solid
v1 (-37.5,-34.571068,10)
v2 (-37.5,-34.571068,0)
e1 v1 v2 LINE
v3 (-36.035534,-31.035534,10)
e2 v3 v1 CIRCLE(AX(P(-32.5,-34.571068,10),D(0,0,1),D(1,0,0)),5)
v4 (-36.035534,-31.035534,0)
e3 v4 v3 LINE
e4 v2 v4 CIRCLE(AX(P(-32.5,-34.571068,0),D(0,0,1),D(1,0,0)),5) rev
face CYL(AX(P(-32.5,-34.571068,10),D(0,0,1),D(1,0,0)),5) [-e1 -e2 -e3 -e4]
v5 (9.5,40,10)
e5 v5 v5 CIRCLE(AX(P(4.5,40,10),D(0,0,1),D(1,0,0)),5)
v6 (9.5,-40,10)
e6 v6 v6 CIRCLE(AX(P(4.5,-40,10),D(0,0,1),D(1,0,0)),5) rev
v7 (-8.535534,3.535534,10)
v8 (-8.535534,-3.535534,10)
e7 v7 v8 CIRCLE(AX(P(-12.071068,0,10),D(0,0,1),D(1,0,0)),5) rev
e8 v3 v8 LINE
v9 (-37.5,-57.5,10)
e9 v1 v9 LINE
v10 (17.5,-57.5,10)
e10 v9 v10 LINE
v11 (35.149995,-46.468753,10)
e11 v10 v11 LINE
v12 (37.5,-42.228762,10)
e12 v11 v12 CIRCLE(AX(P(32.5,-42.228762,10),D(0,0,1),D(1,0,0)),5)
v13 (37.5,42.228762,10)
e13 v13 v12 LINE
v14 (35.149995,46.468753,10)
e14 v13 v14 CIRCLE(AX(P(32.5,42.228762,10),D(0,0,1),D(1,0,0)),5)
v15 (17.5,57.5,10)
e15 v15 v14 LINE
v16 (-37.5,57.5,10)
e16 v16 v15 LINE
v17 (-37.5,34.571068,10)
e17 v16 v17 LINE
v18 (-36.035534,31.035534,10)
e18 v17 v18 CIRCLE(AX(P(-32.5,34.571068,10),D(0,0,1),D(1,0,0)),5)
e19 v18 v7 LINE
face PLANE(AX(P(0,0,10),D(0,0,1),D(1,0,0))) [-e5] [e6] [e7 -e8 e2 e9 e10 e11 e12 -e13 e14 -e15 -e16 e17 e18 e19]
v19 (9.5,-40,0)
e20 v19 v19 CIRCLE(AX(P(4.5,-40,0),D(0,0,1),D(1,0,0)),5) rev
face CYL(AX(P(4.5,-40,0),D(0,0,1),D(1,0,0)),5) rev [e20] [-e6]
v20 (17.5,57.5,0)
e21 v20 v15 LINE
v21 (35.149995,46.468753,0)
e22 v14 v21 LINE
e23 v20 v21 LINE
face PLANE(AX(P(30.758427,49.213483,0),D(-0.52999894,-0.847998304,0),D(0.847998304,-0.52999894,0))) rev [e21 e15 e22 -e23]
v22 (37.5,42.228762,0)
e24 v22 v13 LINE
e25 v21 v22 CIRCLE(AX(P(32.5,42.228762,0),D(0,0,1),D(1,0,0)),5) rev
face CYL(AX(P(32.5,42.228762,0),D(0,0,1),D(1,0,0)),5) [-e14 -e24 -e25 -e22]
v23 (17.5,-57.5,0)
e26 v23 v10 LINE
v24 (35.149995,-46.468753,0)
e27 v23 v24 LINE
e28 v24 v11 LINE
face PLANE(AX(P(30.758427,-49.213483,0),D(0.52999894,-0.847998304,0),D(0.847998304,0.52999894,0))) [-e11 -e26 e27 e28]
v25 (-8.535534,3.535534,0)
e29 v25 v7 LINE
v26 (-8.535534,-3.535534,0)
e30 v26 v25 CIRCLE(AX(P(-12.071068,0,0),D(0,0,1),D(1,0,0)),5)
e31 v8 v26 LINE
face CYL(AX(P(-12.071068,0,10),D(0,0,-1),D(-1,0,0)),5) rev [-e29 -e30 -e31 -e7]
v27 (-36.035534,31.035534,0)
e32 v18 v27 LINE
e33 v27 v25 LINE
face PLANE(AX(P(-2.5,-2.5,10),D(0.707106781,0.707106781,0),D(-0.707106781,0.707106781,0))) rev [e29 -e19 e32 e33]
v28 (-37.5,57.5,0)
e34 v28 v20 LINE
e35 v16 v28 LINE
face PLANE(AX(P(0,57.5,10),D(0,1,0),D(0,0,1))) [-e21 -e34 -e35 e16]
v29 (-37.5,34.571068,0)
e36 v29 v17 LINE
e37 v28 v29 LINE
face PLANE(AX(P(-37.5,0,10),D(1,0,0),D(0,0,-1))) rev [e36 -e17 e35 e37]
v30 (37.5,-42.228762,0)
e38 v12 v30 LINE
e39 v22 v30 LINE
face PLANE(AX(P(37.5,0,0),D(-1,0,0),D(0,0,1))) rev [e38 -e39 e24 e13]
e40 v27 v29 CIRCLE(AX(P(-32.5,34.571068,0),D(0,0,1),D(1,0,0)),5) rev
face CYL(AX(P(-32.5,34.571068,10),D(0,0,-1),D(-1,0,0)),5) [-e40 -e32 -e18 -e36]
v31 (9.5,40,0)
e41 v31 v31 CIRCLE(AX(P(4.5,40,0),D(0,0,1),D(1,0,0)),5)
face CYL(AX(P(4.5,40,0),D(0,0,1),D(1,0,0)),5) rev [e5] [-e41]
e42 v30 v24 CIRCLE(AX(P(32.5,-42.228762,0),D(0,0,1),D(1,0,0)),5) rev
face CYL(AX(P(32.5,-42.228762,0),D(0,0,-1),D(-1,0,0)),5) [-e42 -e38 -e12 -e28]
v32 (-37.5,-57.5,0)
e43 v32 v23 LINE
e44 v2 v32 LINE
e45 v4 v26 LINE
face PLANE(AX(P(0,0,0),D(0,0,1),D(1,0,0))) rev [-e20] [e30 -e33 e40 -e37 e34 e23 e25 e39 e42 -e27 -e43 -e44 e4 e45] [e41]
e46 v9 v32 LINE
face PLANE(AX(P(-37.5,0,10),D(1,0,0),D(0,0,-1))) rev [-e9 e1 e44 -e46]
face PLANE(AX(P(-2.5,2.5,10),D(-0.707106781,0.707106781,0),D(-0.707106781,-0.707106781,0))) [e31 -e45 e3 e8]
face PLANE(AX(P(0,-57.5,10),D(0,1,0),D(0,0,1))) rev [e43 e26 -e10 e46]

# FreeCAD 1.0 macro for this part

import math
import FreeCAD as App
import Part
import Sketcher

V = App.Vector
Q = App.Units.Quantity


def edges_at(feature, points):
    """Names of the edges that pass closest to the given points."""
    edges = feature.Shape.Edges
    near = lambda p: min(range(len(edges)), key=lambda i: edges[i].distToShape(Part.Vertex(*p))[0])
    return sorted({f"Edge{near(p) + 1}" for p in points})

doc = App.newDocument("Part")
params = doc.addObject("Spreadsheet::Sheet", "Params")
for row, (alias, value) in enumerate([
    ("sketch1_width", "75 mm"),
    ("sketch1_height", "25 mm"),
    ("sketch1_height2", "115 mm"),
    ("pad1_length", "10 mm"),
    ("fillet_radius", "5 mm"),
    ("sketch2_height", "115 mm"),
    ("sketch2_height2", "90 mm"),
    ("pad2_length", "10 mm"),
    ("fillet2_radius", "5 mm"),
    ("sketch3_diameter", "10 mm"),
    ("sketch3_width", "20 mm"),
    ("sketch3_height", "90 mm"),
    ("fillet3_radius", "5 mm"),
    ("sketch4_radius", "5 mm"),
    ("sketch5_radius", "5 mm"),
    ("pad3_length", "10 mm"),
], start=1):
    params.set(f"A{row}", alias)
    params.set(f"B{row}", "=" + value)
    params.setAlias(f"B{row}", alias)

body = doc.addObject("PartDesign::Body", "Body")

# Sketch on XY plane
sketch1 = body.newObject("Sketcher::SketchObject", "Sketch")
sketch1.AttachmentSupport = (doc.getObject("XY_Plane"), [""])
sketch1.MapMode = "FlatFace"
sketch1.addGeometry(Part.LineSegment(V(37.5, 57.5, 0), V(-37.5, 57.5, 0)), False)
sketch1.addGeometry(Part.LineSegment(V(-37.5, 57.5, 0), V(-37.5, 32.5, 0)), False)
sketch1.addGeometry(Part.LineSegment(V(-37.5, 32.5, 0), V(-5, 0, 0)), False)
sketch1.addGeometry(Part.LineSegment(V(-5, 0, 0), V(-37.5, -32.5, 0)), False)
sketch1.addGeometry(Part.LineSegment(V(-37.5, -32.5, 0), V(-37.5, -57.5, 0)), False)
sketch1.addGeometry(Part.LineSegment(V(-37.5, -57.5, 0), V(37.5, -57.5, 0)), False)
sketch1.addGeometry(Part.LineSegment(V(37.5, -57.5, 0), V(37.5, 57.5, 0)), False)
sketch1.addConstraint(Sketcher.Constraint("Coincident", 0, 2, 1, 1))
sketch1.addConstraint(Sketcher.Constraint("Coincident", 1, 2, 2, 1))
sketch1.addConstraint(Sketcher.Constraint("Coincident", 2, 2, 3, 1))
sketch1.addConstraint(Sketcher.Constraint("Coincident", 3, 2, 4, 1))
sketch1.addConstraint(Sketcher.Constraint("Coincident", 4, 2, 5, 1))
sketch1.addConstraint(Sketcher.Constraint("Coincident", 5, 2, 6, 1))
sketch1.addConstraint(Sketcher.Constraint("Coincident", 6, 2, 0, 1))
sketch1.addConstraint(Sketcher.Constraint("Horizontal", 0))
sketch1.addConstraint(Sketcher.Constraint("Vertical", 1))
sketch1.addConstraint(Sketcher.Constraint("Vertical", 4))
sketch1.addConstraint(Sketcher.Constraint("Horizontal", 5))
sketch1.addConstraint(Sketcher.Constraint("Vertical", 6))
sketch1.addConstraint(Sketcher.Constraint("Symmetric", 0, 2, 5, 2, -1, 1))
sketch1.addConstraint(Sketcher.Constraint("Symmetric", 1, 2, 3, 2, -1))
sketch1.addConstraint(Sketcher.Constraint("PointOnObject", 2, 2, -1))
sketch1.addConstraint(Sketcher.Constraint("Perpendicular", 2, 3))
sketch1.addConstraint(Sketcher.Constraint("DistanceX", 0, 2, 0, 1, Q("75 mm")))
sketch1.addConstraint(Sketcher.Constraint("DistanceY", 1, 2, 1, 1, Q("25 mm")))
sketch1.addConstraint(Sketcher.Constraint("DistanceY", 6, 1, 6, 2, Q("115 mm")))
sketch1.setExpression("Constraints[16]", "Params.sketch1_width")
sketch1.setExpression("Constraints[17]", "Params.sketch1_height")
sketch1.setExpression("Constraints[18]", "Params.sketch1_height2")
pad1 = body.newObject("PartDesign::Pad", "Pad")
pad1.Profile = sketch1
pad1.setExpression("Length", "Params.pad1_length")
doc.recompute()

fillet = body.newObject("PartDesign::Fillet", "Fillet")
fillet.Base = (pad1, edges_at(pad1, [(-5, 0, 5), (-37.5, 32.5, 5), (-37.5, -32.5, 5)]))
fillet.setExpression("Radius", "Params.fillet_radius")

# Sketch on XY plane
sketch2 = body.newObject("Sketcher::SketchObject", "Sketch001")
sketch2.AttachmentSupport = (doc.getObject("XY_Plane"), [""])
sketch2.MapMode = "FlatFace"
sketch2.AttachmentOffset = App.Placement(V(0, 0, 10), App.Rotation())
sketch2.addGeometry(Part.LineSegment(V(37.5, 57.5, 0), V(37.5, -57.5, 0)), False)
sketch2.addGeometry(Part.LineSegment(V(37.5, -57.5, 0), V(57.5, -45, 0)), False)
sketch2.addGeometry(Part.LineSegment(V(57.5, -45, 0), V(57.5, 45, 0)), False)
sketch2.addGeometry(Part.LineSegment(V(57.5, 45, 0), V(37.5, 57.5, 0)), False)
sketch2.addConstraint(Sketcher.Constraint("Coincident", 0, 2, 1, 1))
sketch2.addConstraint(Sketcher.Constraint("Coincident", 1, 2, 2, 1))
sketch2.addConstraint(Sketcher.Constraint("Coincident", 2, 2, 3, 1))
sketch2.addConstraint(Sketcher.Constraint("Coincident", 3, 2, 0, 1))
sketch2.addConstraint(Sketcher.Constraint("Vertical", 0))
sketch2.addConstraint(Sketcher.Constraint("Vertical", 2))
sketch2.addConstraint(Sketcher.Constraint("Equal", 1, 3))
sketch2.addConstraint(Sketcher.Constraint("DistanceY", 0, 2, 0, 1, Q("115 mm")))
sketch2.addConstraint(Sketcher.Constraint("DistanceY", 2, 1, 2, 2, Q("90 mm")))
sketch2.addConstraint(Sketcher.Constraint("DistanceY", 1, 2, -1, 1, Q("45 mm")))
sketch2.addConstraint(Sketcher.Constraint("DistanceX", 0, 2, 1, 2, Q("20 mm")))
sketch2.addConstraint(Sketcher.Constraint("DistanceX", -1, 1, 0, 2, Q("37.5 mm")))
sketch2.setExpression("Constraints[7]", "Params.sketch2_height")
sketch2.setExpression("Constraints[8]", "Params.sketch2_height2")
pad2 = body.newObject("PartDesign::Pad", "Pad001")
pad2.Profile = sketch2
pad2.setExpression("Length", "Params.pad2_length")
pad2.Reversed = True
doc.recompute()

fillet2 = body.newObject("PartDesign::Fillet", "Fillet001")
fillet2.Base = (pad2, edges_at(pad2, [(57.5, -45, 5), (57.5, 45, 5)]))
fillet2.setExpression("Radius", "Params.fillet2_radius")

# Sketch on XY plane
sketch3 = body.newObject("Sketcher::SketchObject", "Sketch002")
sketch3.AttachmentSupport = (doc.getObject("XY_Plane"), [""])
sketch3.MapMode = "FlatFace"
sketch3.AttachmentOffset = App.Placement(V(0, 0, 10), App.Rotation())
sketch3.addGeometry(Part.LineSegment(V(17.5, 57.5, 0), V(37.5, 45, 0)), False)
sketch3.addGeometry(Part.LineSegment(V(37.5, 45, 0), V(37.5, -45, 0)), False)
sketch3.addGeometry(Part.LineSegment(V(37.5, -45, 0), V(17.5, -57.5, 0)), False)
sketch3.addGeometry(Part.LineSegment(V(17.5, -57.5, 0), V(37.5, -57.5, 0)), False)
sketch3.addGeometry(Part.LineSegment(V(37.5, -57.5, 0), V(55.149995, -46.468753, 0)), False)
sketch3.addGeometry(Part.ArcOfCircle(Part.Circle(V(52.5, -42.228762, 0), V(0, 0, 1), 5), math.radians(-57.994617), math.radians(0)), False)
sketch3.addGeometry(Part.LineSegment(V(57.5, -42.228762, 0), V(57.5, 42.228762, 0)), False)
sketch3.addGeometry(Part.ArcOfCircle(Part.Circle(V(52.5, 42.228762, 0), V(0, 0, 1), 5), math.radians(0), math.radians(57.994617)), False)
sketch3.addGeometry(Part.LineSegment(V(55.149995, 46.468753, 0), V(37.5, 57.5, 0)), False)
sketch3.addGeometry(Part.LineSegment(V(37.5, 57.5, 0), V(17.5, 57.5, 0)), False)
sketch3.addGeometry(Part.Circle(V(4.5, -32.5, 0), V(0, 0, 1), 5), False)
sketch3.addGeometry(Part.Circle(V(4.5, 32.5, 0), V(0, 0, 1), 5), False)
sketch3.addConstraint(Sketcher.Constraint("Coincident", 0, 2, 1, 1))
sketch3.addConstraint(Sketcher.Constraint("Coincident", 1, 2, 2, 1))
sketch3.addConstraint(Sketcher.Constraint("Coincident", 2, 2, 3, 1))
sketch3.addConstraint(Sketcher.Constraint("Coincident", 3, 2, 4, 1))
sketch3.addConstraint(Sketcher.Constraint("Tangent", 4, 2, 5, 1))
sketch3.addConstraint(Sketcher.Constraint("Tangent", 5, 2, 6, 1))
sketch3.addConstraint(Sketcher.Constraint("Tangent", 6, 2, 7, 1))
sketch3.addConstraint(Sketcher.Constraint("Tangent", 7, 2, 8, 1))
sketch3.addConstraint(Sketcher.Constraint("Coincident", 8, 2, 9, 1))
sketch3.addConstraint(Sketcher.Constraint("Coincident", 9, 2, 0, 1))
sketch3.addConstraint(Sketcher.Constraint("Vertical", 1))
sketch3.addConstraint(Sketcher.Constraint("Horizontal", 3))
sketch3.addConstraint(Sketcher.Constraint("Vertical", 6))
sketch3.addConstraint(Sketcher.Constraint("Horizontal", 9))
sketch3.addConstraint(Sketcher.Constraint("Equal", 5, 7))
sketch3.addConstraint(Sketcher.Constraint("Equal", 7, 10))
sketch3.addConstraint(Sketcher.Constraint("Equal", 10, 11))
sketch3.addConstraint(Sketcher.Constraint("Symmetric", 10, 3, 11, 3, -1))
sketch3.addConstraint(Sketcher.Constraint("Symmetric", 4, 2, 7, 2, -1))
sketch3.addConstraint(Sketcher.Constraint("Symmetric", 2, 2, 9, 2, -1))
sketch3.addConstraint(Sketcher.Constraint("Parallel", 2, 4))
sketch3.addConstraint(Sketcher.Constraint("Parallel", 0, 8))
sketch3.addConstraint(Sketcher.Constraint("Vertical", 1, 2, 3, 2))
sketch3.addConstraint(Sketcher.Constraint("Diameter", 10, Q("10 mm")))
sketch3.addConstraint(Sketcher.Constraint("DistanceX", 3, 1, 3, 2, Q("20 mm")))
sketch3.addConstraint(Sketcher.Constraint("DistanceY", 1, 2, 1, 1, Q("90 mm")))
sketch3.addConstraint(Sketcher.Constraint("DistanceX", 10, 3, 5, 3, Q("48 mm")))
sketch3.addConstraint(Sketcher.Constraint("DistanceY", 10, 3, 11, 3, Q("65 mm")))
sketch3.addConstraint(Sketcher.Constraint("DistanceX", 0, 2, 7, 3, Q("15 mm")))
sketch3.addConstraint(Sketcher.Constraint("DistanceY", 2, 2, 10, 3, Q("25 mm")))
sketch3.addConstraint(Sketcher.Constraint("DistanceX", -1, 1, 5, 3, Q("52.5 mm")))
sketch3.setExpression("Constraints[23]", "Params.sketch3_diameter")
sketch3.setExpression("Constraints[24]", "Params.sketch3_width")
sketch3.setExpression("Constraints[25]", "Params.sketch3_height")
pocket1 = body.newObject("PartDesign::Pocket", "Pocket")
pocket1.Profile = sketch3
pocket1.Type = "ThroughAll"
doc.recompute()

fillet3 = body.newObject("PartDesign::Fillet", "Fillet002")
fillet3.Base = (pocket1, edges_at(pocket1, [(37.5, -45, 5), (37.5, 45, 5)]))
fillet3.setExpression("Radius", "Params.fillet3_radius")

# Sketch on XY plane
sketch4 = body.newObject("Sketcher::SketchObject", "Sketch003")
sketch4.AttachmentSupport = (doc.getObject("XY_Plane"), [""])
sketch4.MapMode = "FlatFace"
sketch4.AttachmentOffset = App.Placement(V(0, 0, 10), App.Rotation())
sketch4.addGeometry(Part.ArcOfCircle(Part.Circle(V(4.5, 40, 0), V(0, 0, 1), 5), math.radians(-48.590378), math.radians(228.590378)), False)
sketch4.addGeometry(Part.ArcOfCircle(Part.Circle(V(4.5, 32.5, 0), V(0, 0, 1), 5), math.radians(131.409622), math.radians(408.590378)), False)
sketch4.addGeometry(Part.ArcOfCircle(Part.Circle(V(4.5, -40, 0), V(0, 0, 1), 5), math.radians(131.409622), math.radians(408.590378)), False)
sketch4.addGeometry(Part.ArcOfCircle(Part.Circle(V(4.5, -32.5, 0), V(0, 0, 1), 5), math.radians(-48.590378), math.radians(228.590378)), False)
sketch4.addConstraint(Sketcher.Constraint("Coincident", 0, 1, 1, 2))
sketch4.addConstraint(Sketcher.Constraint("Coincident", 1, 1, 0, 2))
sketch4.addConstraint(Sketcher.Constraint("Coincident", 2, 1, 3, 2))
sketch4.addConstraint(Sketcher.Constraint("Coincident", 3, 1, 2, 2))
sketch4.addConstraint(Sketcher.Constraint("Equal", 0, 1))
sketch4.addConstraint(Sketcher.Constraint("Equal", 1, 2))
sketch4.addConstraint(Sketcher.Constraint("Equal", 2, 3))
sketch4.addConstraint(Sketcher.Constraint("Symmetric", 0, 3, 2, 3, -1))
sketch4.addConstraint(Sketcher.Constraint("Symmetric", 1, 3, 3, 3, -1))
sketch4.addConstraint(Sketcher.Constraint("Horizontal", 0, 1, 1, 1))
sketch4.addConstraint(Sketcher.Constraint("Radius", 0, Q("5 mm")))
sketch4.addConstraint(Sketcher.Constraint("DistanceY", -1, 1, 0, 3, Q("40 mm")))
sketch4.addConstraint(Sketcher.Constraint("DistanceY", 3, 3, 1, 3, Q("65 mm")))
sketch4.addConstraint(Sketcher.Constraint("DistanceX", -1, 1, 0, 3, Q("4.5 mm")))
sketch4.setExpression("Constraints[10]", "Params.sketch4_radius")
pocket2 = body.newObject("PartDesign::Pocket", "Pocket001")
pocket2.Profile = sketch4
pocket2.Type = "ThroughAll"

# Sketch on XY plane
sketch5 = body.newObject("Sketcher::SketchObject", "Sketch004")
sketch5.AttachmentSupport = (doc.getObject("XY_Plane"), [""])
sketch5.MapMode = "FlatFace"
sketch5.AttachmentOffset = App.Placement(V(0, 0, 10), App.Rotation())
sketch5.addGeometry(Part.ArcOfCircle(Part.Circle(V(4.5, 32.5, 0), V(0, 0, 1), 5), math.radians(131.409622), math.radians(360)), False)
sketch5.addGeometry(Part.ArcOfCircle(Part.Circle(V(4.5, 32.5, 0), V(0, 0, 1), 5), math.radians(0), math.radians(48.590378)), False)
sketch5.addGeometry(Part.ArcOfCircle(Part.Circle(V(4.5, 40, 0), V(0, 0, 1), 5), math.radians(-131.409622), math.radians(-48.590378)), False)
sketch5.addGeometry(Part.ArcOfCircle(Part.Circle(V(4.5, -32.5, 0), V(0, 0, 1), 5), math.radians(-48.590378), math.radians(0)), False)
sketch5.addGeometry(Part.ArcOfCircle(Part.Circle(V(4.5, -32.5, 0), V(0, 0, 1), 5), math.radians(0), math.radians(228.590378)), False)
sketch5.addGeometry(Part.ArcOfCircle(Part.Circle(V(4.5, -40, 0), V(0, 0, 1), 5), math.radians(48.590378), math.radians(131.409622)), False)
sketch5.addConstraint(Sketcher.Constraint("Tangent", 0, 2, 1, 1))
sketch5.addConstraint(Sketcher.Constraint("Coincident", 1, 2, 2, 2))
sketch5.addConstraint(Sketcher.Constraint("Coincident", 2, 1, 0, 1))
sketch5.addConstraint(Sketcher.Constraint("Tangent", 3, 2, 4, 1))
sketch5.addConstraint(Sketcher.Constraint("Coincident", 4, 2, 5, 2))
sketch5.addConstraint(Sketcher.Constraint("Coincident", 5, 1, 3, 1))
sketch5.addConstraint(Sketcher.Constraint("Equal", 0, 1))
sketch5.addConstraint(Sketcher.Constraint("Equal", 1, 2))
sketch5.addConstraint(Sketcher.Constraint("Equal", 2, 3))
sketch5.addConstraint(Sketcher.Constraint("Equal", 3, 4))
sketch5.addConstraint(Sketcher.Constraint("Equal", 4, 5))
sketch5.addConstraint(Sketcher.Constraint("Symmetric", 0, 3, 3, 3, -1))
sketch5.addConstraint(Sketcher.Constraint("Symmetric", 2, 3, 5, 3, -1))
sketch5.addConstraint(Sketcher.Constraint("Horizontal", 1, 3, 0, 2))
sketch5.addConstraint(Sketcher.Constraint("Horizontal", 1, 2, 2, 1))
sketch5.addConstraint(Sketcher.Constraint("Horizontal", 4, 3, 3, 2))
sketch5.addConstraint(Sketcher.Constraint("Radius", 0, Q("5 mm")))
sketch5.addConstraint(Sketcher.Constraint("DistanceY", -1, 1, 2, 3, Q("40 mm")))
sketch5.addConstraint(Sketcher.Constraint("DistanceY", 3, 3, 0, 3, Q("65 mm")))
sketch5.addConstraint(Sketcher.Constraint("DistanceX", -1, 1, 0, 3, Q("4.5 mm")))
sketch5.setExpression("Constraints[16]", "Params.sketch5_radius")
pad3 = body.newObject("PartDesign::Pad", "Pad002")
pad3.Profile = sketch5
pad3.setExpression("Length", "Params.pad3_length")
pad3.Reversed = True

doc.recompute()
